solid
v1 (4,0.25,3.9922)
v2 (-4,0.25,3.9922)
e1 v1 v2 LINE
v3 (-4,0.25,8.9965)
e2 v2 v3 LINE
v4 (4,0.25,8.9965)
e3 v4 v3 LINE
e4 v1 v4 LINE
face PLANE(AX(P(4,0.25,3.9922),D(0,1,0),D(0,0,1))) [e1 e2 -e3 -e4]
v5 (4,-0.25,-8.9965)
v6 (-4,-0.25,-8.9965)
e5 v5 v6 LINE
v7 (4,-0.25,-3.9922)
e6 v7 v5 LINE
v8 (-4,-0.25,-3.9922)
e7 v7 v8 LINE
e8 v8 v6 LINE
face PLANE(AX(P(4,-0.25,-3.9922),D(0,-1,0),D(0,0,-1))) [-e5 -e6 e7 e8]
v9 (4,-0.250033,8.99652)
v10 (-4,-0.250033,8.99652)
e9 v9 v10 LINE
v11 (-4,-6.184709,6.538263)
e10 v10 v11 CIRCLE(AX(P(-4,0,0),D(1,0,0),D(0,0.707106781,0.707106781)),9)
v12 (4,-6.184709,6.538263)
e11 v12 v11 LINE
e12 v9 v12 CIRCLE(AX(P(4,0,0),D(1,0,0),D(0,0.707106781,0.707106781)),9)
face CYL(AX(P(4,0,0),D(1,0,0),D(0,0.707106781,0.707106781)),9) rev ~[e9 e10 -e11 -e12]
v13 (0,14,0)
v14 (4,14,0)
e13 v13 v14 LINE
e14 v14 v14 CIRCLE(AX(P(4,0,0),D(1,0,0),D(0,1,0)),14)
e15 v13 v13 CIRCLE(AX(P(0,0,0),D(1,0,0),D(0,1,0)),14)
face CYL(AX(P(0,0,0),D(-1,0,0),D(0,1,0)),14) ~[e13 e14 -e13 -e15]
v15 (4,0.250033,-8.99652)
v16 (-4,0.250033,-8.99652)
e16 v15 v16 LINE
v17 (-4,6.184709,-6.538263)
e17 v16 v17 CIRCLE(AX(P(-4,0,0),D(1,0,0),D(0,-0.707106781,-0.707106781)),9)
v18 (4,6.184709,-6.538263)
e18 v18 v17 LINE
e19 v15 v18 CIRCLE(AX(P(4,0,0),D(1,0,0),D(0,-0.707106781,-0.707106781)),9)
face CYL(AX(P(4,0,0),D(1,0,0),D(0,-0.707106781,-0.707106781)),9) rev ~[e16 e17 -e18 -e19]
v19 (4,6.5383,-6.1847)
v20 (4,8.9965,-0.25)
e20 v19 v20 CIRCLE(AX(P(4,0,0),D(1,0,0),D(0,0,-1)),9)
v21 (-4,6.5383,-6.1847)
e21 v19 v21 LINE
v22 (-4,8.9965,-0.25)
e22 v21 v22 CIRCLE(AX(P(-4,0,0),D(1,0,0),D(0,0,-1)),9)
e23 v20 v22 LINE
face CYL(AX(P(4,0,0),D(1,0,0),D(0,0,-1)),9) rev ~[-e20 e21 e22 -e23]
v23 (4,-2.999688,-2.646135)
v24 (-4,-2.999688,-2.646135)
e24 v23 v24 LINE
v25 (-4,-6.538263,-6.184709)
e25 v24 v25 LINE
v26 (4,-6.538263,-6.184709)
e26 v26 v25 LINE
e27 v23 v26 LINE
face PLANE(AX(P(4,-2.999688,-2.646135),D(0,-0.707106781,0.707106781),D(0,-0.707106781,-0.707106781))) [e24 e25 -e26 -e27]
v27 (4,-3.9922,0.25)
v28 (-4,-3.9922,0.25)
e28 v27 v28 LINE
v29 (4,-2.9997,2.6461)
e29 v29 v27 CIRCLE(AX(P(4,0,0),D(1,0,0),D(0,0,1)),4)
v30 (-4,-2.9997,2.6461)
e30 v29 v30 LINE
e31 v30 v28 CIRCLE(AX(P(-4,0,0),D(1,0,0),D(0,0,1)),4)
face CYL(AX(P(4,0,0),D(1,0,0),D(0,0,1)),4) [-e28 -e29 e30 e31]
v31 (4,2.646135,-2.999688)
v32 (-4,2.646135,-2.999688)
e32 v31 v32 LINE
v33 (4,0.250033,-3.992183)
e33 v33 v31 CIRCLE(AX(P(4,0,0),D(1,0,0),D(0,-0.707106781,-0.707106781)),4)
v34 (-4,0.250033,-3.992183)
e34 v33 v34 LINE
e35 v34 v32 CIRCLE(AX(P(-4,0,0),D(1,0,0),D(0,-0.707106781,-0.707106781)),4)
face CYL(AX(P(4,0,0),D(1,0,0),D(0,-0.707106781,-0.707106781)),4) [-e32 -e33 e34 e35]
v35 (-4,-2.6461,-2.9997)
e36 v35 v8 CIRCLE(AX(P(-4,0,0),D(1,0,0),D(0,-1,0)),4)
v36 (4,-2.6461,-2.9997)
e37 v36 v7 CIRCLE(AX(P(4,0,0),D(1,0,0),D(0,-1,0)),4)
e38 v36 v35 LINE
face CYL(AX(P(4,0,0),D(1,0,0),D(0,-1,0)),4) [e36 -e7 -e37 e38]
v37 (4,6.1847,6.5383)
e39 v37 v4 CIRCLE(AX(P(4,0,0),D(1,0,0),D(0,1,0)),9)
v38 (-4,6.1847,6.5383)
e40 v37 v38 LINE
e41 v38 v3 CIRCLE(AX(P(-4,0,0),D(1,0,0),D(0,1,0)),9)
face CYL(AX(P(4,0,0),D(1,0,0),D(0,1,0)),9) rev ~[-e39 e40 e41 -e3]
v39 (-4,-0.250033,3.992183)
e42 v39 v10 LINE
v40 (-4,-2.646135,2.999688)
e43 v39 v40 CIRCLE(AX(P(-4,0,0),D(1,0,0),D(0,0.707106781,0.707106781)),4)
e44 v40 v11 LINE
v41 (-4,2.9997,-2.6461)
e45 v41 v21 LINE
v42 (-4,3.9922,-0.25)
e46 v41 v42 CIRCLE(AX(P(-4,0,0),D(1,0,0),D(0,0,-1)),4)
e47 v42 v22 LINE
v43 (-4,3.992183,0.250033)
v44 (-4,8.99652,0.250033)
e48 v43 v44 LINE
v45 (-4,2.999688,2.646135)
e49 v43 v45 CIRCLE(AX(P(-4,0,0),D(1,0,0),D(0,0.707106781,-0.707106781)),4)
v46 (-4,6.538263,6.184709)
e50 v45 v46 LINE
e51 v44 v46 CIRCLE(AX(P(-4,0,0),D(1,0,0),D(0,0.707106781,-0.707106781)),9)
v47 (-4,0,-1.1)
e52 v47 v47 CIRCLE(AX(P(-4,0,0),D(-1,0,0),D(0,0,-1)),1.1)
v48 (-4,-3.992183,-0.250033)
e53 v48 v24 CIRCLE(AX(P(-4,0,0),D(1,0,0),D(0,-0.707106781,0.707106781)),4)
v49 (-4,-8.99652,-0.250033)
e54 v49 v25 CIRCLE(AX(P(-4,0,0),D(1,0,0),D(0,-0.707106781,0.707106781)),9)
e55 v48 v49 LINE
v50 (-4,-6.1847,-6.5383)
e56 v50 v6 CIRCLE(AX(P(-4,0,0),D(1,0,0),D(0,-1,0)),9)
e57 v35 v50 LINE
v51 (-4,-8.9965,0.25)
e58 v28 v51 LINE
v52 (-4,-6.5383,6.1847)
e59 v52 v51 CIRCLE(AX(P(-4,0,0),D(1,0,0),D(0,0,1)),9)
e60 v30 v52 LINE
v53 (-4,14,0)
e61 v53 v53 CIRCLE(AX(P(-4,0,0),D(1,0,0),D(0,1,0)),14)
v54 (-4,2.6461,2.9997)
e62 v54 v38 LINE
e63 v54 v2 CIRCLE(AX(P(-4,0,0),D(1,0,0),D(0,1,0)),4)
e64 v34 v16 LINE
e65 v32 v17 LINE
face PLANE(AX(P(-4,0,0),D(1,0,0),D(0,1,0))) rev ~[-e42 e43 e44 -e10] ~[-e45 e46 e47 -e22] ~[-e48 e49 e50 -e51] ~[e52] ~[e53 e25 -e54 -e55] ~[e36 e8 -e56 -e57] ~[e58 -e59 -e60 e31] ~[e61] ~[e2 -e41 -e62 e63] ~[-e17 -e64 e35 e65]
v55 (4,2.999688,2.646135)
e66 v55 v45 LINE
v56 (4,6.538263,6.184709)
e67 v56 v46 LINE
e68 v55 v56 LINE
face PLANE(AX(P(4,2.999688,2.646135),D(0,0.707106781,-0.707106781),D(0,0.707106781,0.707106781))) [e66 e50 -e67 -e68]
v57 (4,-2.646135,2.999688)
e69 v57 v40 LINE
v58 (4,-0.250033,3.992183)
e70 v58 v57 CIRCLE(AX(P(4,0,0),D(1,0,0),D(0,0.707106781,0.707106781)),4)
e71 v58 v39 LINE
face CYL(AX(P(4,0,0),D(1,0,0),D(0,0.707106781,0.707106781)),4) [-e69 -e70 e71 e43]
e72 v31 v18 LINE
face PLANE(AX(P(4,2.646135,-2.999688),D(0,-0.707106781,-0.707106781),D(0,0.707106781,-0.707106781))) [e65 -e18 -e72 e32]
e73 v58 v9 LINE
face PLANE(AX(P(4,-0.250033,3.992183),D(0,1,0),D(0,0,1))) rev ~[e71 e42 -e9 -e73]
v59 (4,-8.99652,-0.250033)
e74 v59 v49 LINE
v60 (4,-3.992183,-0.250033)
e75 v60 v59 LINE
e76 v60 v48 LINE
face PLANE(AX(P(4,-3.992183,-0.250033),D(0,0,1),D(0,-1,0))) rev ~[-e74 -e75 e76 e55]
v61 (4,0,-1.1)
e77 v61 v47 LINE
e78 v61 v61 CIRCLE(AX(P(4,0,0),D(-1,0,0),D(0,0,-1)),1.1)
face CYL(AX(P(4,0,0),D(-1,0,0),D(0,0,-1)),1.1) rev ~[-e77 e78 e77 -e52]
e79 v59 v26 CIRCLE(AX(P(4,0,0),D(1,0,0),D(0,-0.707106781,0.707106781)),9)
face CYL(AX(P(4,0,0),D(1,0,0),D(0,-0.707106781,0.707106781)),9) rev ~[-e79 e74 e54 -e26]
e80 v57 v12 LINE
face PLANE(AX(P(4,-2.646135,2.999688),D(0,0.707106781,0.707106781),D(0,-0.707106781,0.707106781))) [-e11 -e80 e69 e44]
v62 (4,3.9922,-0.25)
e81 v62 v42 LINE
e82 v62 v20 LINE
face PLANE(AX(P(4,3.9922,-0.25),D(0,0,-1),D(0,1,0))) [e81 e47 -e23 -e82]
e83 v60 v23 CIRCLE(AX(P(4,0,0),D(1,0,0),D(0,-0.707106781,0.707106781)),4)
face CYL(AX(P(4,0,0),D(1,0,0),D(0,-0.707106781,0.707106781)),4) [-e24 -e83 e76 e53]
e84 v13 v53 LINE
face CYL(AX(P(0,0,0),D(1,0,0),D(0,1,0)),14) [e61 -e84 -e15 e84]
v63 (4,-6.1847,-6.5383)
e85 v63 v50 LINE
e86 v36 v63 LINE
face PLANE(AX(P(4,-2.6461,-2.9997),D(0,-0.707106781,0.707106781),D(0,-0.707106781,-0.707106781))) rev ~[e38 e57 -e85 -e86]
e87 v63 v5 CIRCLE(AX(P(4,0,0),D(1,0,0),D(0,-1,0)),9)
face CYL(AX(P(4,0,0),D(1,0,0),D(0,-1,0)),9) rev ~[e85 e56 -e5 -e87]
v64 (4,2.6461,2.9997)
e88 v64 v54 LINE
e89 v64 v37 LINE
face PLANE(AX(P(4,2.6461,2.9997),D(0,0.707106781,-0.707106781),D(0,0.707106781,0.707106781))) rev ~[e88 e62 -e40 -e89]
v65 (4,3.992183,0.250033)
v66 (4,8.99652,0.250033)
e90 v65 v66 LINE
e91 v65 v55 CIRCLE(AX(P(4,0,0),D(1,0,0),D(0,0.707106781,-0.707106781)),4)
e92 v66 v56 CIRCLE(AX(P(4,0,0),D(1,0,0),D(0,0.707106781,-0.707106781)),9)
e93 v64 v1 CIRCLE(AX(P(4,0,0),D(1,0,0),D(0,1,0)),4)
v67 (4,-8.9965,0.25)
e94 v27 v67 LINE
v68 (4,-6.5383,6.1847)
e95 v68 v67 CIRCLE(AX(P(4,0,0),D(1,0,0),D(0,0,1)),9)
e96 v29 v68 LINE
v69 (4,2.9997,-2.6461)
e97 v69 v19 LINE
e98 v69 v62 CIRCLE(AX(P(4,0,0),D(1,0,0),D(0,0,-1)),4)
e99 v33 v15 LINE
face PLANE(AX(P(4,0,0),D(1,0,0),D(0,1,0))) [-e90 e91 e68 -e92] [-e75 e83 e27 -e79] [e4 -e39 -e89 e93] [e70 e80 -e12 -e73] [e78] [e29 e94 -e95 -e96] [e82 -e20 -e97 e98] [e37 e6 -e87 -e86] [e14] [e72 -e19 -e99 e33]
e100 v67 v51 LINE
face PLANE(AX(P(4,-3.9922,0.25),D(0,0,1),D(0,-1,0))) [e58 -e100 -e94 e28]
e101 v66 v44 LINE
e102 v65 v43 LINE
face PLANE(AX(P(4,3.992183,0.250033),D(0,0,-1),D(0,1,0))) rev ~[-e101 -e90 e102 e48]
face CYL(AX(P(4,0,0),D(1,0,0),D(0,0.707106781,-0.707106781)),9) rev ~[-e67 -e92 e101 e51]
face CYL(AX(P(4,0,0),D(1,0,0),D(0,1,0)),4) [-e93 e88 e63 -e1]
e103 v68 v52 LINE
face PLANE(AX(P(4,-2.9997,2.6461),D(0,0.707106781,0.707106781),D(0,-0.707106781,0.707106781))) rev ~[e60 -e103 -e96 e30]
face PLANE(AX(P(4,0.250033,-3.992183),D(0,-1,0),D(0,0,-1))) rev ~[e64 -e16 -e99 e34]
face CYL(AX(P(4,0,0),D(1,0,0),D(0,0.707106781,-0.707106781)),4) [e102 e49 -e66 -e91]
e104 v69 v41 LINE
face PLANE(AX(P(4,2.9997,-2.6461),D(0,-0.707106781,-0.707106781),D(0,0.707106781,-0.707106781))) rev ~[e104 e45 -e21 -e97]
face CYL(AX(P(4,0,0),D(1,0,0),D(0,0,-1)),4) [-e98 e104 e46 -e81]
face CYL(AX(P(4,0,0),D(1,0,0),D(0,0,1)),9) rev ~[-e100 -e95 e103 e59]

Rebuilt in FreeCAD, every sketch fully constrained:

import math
import FreeCAD as App
import Part
import Sketcher

V = App.Vector
Q = App.Units.Quantity

doc = App.newDocument("Part")
params = doc.addObject("Spreadsheet::Sheet", "Params")
for row, (alias, value) in enumerate([
    ("sketch1_diameter", "28 mm"),
    ("pad1_length", "8 mm"),
    ("sketch2_radius", "4 mm"),
    ("sketch2_radius2", "9 mm"),
    ("sketch3_diameter", "2.2 mm"),
    ("hole_diameter", "2.2 mm"),
], start=1):
    params.set(f"A{row}", alias)
    params.set(f"B{row}", "=" + value)
    params.setAlias(f"B{row}", alias)

body = doc.addObject("PartDesign::Body", "Body")

sketch1 = body.newObject("Sketcher::SketchObject", "Sketch")
sketch1.AttachmentSupport = (doc.getObject("YZ_Plane"), [""])
sketch1.MapMode = "FlatFace"
sketch1.addGeometry(Part.Circle(V(0, 0, 0), V(0, 0, 1), 14), False)
sketch1.addConstraint([
    Sketcher.Constraint("Coincident", 0, 3, -1, 1),
    Sketcher.Constraint("Diameter", 0, Q("28 mm")),
])
sketch1.setExpression("Constraints[1]", "Params.sketch1_diameter")
pad1 = body.newObject("PartDesign::Pad", "Pad")
pad1.Profile = sketch1
pad1.setExpression("Length", "Params.pad1_length")
pad1.Midplane = True

sketch2 = body.newObject("Sketcher::SketchObject", "Sketch001")
sketch2.AttachmentSupport = (doc.getObject("YZ_Plane"), [""])
sketch2.MapMode = "FlatFace"
sketch2.AttachmentOffset = App.Placement(V(0, 0, 4), App.Rotation())
sketch2.addGeometry([
    Part.ArcOfCircle(Part.Circle(V(0, 0, 0), V(0, 0, 1), 4), math.radians(-41.41621), math.radians(-3.583304)),
    Part.LineSegment(V(2.9997, -2.6461, 0), V(6.5383, -6.1847, 0)),
    Part.ArcOfCircle(Part.Circle(V(0, 0, 0), V(0, 0, 1), 9), math.radians(-43.408035), math.radians(-1.591759)),
    Part.LineSegment(V(8.9965, -0.25, 0), V(3.9922, -0.25, 0)),
], False)
sketch2.addConstraint([
    Sketcher.Constraint("Coincident", 0, 1, 1, 1),
    Sketcher.Constraint("Coincident", 1, 2, 2, 1),
    Sketcher.Constraint("Coincident", 2, 2, 3, 1),
    Sketcher.Constraint("Coincident", 3, 2, 0, 2),
    Sketcher.Constraint("Horizontal", 3),
    Sketcher.Constraint("Coincident", 0, 3, -1, 1),
    Sketcher.Constraint("Coincident", 2, 3, -1, 1),
    Sketcher.Constraint("Radius", 0, Q("4 mm")),
    Sketcher.Constraint("Radius", 2, Q("9 mm")),
    Sketcher.Constraint("Angle", 1, Q("-45 deg")),
    Sketcher.Constraint("DistanceY", 2, 2, -1, 1, Q("0.25 mm")),
    Sketcher.Constraint("DistanceY", 0, 1, -1, 1, Q("2.646 mm")),
])
sketch2.setExpression("Constraints[7]", "Params.sketch2_radius")
sketch2.setExpression("Constraints[8]", "Params.sketch2_radius2")
pocket1 = body.newObject("PartDesign::Pocket", "Pocket")
pocket1.Profile = sketch2
pocket1.Type = "ThroughAll"
doc.recompute()

polarpattern = body.newObject("PartDesign::PolarPattern", "PolarPattern")
polarpattern.Originals = [pocket1]
polarpattern.Axis = (doc.getObject("X_Axis"), [""])
polarpattern.Angle = 360
polarpattern.Occurrences = 8
body.Tip = polarpattern

sketch3 = body.newObject("Sketcher::SketchObject", "Sketch002")
sketch3.AttachmentSupport = (doc.getObject("YZ_Plane"), [""])
sketch3.MapMode = "FlatFace"
sketch3.AttachmentOffset = App.Placement(V(0, 0, 4), App.Rotation())
sketch3.addGeometry(Part.Circle(V(0, 0, 0), V(0, 0, 1), 1.1), False)
sketch3.addConstraint([
    Sketcher.Constraint("Coincident", 0, 3, -1, 1),
    Sketcher.Constraint("Diameter", 0, Q("2.2 mm")),
])
sketch3.setExpression("Constraints[1]", "Params.sketch3_diameter")
doc.recompute()
hole = body.newObject("PartDesign::Hole", "Hole")
hole.Profile = sketch3
hole.ThreadType = "None"
hole.setExpression("Diameter", "Params.hole_diameter")
hole.DepthType = "ThroughAll"

doc.recompute()
